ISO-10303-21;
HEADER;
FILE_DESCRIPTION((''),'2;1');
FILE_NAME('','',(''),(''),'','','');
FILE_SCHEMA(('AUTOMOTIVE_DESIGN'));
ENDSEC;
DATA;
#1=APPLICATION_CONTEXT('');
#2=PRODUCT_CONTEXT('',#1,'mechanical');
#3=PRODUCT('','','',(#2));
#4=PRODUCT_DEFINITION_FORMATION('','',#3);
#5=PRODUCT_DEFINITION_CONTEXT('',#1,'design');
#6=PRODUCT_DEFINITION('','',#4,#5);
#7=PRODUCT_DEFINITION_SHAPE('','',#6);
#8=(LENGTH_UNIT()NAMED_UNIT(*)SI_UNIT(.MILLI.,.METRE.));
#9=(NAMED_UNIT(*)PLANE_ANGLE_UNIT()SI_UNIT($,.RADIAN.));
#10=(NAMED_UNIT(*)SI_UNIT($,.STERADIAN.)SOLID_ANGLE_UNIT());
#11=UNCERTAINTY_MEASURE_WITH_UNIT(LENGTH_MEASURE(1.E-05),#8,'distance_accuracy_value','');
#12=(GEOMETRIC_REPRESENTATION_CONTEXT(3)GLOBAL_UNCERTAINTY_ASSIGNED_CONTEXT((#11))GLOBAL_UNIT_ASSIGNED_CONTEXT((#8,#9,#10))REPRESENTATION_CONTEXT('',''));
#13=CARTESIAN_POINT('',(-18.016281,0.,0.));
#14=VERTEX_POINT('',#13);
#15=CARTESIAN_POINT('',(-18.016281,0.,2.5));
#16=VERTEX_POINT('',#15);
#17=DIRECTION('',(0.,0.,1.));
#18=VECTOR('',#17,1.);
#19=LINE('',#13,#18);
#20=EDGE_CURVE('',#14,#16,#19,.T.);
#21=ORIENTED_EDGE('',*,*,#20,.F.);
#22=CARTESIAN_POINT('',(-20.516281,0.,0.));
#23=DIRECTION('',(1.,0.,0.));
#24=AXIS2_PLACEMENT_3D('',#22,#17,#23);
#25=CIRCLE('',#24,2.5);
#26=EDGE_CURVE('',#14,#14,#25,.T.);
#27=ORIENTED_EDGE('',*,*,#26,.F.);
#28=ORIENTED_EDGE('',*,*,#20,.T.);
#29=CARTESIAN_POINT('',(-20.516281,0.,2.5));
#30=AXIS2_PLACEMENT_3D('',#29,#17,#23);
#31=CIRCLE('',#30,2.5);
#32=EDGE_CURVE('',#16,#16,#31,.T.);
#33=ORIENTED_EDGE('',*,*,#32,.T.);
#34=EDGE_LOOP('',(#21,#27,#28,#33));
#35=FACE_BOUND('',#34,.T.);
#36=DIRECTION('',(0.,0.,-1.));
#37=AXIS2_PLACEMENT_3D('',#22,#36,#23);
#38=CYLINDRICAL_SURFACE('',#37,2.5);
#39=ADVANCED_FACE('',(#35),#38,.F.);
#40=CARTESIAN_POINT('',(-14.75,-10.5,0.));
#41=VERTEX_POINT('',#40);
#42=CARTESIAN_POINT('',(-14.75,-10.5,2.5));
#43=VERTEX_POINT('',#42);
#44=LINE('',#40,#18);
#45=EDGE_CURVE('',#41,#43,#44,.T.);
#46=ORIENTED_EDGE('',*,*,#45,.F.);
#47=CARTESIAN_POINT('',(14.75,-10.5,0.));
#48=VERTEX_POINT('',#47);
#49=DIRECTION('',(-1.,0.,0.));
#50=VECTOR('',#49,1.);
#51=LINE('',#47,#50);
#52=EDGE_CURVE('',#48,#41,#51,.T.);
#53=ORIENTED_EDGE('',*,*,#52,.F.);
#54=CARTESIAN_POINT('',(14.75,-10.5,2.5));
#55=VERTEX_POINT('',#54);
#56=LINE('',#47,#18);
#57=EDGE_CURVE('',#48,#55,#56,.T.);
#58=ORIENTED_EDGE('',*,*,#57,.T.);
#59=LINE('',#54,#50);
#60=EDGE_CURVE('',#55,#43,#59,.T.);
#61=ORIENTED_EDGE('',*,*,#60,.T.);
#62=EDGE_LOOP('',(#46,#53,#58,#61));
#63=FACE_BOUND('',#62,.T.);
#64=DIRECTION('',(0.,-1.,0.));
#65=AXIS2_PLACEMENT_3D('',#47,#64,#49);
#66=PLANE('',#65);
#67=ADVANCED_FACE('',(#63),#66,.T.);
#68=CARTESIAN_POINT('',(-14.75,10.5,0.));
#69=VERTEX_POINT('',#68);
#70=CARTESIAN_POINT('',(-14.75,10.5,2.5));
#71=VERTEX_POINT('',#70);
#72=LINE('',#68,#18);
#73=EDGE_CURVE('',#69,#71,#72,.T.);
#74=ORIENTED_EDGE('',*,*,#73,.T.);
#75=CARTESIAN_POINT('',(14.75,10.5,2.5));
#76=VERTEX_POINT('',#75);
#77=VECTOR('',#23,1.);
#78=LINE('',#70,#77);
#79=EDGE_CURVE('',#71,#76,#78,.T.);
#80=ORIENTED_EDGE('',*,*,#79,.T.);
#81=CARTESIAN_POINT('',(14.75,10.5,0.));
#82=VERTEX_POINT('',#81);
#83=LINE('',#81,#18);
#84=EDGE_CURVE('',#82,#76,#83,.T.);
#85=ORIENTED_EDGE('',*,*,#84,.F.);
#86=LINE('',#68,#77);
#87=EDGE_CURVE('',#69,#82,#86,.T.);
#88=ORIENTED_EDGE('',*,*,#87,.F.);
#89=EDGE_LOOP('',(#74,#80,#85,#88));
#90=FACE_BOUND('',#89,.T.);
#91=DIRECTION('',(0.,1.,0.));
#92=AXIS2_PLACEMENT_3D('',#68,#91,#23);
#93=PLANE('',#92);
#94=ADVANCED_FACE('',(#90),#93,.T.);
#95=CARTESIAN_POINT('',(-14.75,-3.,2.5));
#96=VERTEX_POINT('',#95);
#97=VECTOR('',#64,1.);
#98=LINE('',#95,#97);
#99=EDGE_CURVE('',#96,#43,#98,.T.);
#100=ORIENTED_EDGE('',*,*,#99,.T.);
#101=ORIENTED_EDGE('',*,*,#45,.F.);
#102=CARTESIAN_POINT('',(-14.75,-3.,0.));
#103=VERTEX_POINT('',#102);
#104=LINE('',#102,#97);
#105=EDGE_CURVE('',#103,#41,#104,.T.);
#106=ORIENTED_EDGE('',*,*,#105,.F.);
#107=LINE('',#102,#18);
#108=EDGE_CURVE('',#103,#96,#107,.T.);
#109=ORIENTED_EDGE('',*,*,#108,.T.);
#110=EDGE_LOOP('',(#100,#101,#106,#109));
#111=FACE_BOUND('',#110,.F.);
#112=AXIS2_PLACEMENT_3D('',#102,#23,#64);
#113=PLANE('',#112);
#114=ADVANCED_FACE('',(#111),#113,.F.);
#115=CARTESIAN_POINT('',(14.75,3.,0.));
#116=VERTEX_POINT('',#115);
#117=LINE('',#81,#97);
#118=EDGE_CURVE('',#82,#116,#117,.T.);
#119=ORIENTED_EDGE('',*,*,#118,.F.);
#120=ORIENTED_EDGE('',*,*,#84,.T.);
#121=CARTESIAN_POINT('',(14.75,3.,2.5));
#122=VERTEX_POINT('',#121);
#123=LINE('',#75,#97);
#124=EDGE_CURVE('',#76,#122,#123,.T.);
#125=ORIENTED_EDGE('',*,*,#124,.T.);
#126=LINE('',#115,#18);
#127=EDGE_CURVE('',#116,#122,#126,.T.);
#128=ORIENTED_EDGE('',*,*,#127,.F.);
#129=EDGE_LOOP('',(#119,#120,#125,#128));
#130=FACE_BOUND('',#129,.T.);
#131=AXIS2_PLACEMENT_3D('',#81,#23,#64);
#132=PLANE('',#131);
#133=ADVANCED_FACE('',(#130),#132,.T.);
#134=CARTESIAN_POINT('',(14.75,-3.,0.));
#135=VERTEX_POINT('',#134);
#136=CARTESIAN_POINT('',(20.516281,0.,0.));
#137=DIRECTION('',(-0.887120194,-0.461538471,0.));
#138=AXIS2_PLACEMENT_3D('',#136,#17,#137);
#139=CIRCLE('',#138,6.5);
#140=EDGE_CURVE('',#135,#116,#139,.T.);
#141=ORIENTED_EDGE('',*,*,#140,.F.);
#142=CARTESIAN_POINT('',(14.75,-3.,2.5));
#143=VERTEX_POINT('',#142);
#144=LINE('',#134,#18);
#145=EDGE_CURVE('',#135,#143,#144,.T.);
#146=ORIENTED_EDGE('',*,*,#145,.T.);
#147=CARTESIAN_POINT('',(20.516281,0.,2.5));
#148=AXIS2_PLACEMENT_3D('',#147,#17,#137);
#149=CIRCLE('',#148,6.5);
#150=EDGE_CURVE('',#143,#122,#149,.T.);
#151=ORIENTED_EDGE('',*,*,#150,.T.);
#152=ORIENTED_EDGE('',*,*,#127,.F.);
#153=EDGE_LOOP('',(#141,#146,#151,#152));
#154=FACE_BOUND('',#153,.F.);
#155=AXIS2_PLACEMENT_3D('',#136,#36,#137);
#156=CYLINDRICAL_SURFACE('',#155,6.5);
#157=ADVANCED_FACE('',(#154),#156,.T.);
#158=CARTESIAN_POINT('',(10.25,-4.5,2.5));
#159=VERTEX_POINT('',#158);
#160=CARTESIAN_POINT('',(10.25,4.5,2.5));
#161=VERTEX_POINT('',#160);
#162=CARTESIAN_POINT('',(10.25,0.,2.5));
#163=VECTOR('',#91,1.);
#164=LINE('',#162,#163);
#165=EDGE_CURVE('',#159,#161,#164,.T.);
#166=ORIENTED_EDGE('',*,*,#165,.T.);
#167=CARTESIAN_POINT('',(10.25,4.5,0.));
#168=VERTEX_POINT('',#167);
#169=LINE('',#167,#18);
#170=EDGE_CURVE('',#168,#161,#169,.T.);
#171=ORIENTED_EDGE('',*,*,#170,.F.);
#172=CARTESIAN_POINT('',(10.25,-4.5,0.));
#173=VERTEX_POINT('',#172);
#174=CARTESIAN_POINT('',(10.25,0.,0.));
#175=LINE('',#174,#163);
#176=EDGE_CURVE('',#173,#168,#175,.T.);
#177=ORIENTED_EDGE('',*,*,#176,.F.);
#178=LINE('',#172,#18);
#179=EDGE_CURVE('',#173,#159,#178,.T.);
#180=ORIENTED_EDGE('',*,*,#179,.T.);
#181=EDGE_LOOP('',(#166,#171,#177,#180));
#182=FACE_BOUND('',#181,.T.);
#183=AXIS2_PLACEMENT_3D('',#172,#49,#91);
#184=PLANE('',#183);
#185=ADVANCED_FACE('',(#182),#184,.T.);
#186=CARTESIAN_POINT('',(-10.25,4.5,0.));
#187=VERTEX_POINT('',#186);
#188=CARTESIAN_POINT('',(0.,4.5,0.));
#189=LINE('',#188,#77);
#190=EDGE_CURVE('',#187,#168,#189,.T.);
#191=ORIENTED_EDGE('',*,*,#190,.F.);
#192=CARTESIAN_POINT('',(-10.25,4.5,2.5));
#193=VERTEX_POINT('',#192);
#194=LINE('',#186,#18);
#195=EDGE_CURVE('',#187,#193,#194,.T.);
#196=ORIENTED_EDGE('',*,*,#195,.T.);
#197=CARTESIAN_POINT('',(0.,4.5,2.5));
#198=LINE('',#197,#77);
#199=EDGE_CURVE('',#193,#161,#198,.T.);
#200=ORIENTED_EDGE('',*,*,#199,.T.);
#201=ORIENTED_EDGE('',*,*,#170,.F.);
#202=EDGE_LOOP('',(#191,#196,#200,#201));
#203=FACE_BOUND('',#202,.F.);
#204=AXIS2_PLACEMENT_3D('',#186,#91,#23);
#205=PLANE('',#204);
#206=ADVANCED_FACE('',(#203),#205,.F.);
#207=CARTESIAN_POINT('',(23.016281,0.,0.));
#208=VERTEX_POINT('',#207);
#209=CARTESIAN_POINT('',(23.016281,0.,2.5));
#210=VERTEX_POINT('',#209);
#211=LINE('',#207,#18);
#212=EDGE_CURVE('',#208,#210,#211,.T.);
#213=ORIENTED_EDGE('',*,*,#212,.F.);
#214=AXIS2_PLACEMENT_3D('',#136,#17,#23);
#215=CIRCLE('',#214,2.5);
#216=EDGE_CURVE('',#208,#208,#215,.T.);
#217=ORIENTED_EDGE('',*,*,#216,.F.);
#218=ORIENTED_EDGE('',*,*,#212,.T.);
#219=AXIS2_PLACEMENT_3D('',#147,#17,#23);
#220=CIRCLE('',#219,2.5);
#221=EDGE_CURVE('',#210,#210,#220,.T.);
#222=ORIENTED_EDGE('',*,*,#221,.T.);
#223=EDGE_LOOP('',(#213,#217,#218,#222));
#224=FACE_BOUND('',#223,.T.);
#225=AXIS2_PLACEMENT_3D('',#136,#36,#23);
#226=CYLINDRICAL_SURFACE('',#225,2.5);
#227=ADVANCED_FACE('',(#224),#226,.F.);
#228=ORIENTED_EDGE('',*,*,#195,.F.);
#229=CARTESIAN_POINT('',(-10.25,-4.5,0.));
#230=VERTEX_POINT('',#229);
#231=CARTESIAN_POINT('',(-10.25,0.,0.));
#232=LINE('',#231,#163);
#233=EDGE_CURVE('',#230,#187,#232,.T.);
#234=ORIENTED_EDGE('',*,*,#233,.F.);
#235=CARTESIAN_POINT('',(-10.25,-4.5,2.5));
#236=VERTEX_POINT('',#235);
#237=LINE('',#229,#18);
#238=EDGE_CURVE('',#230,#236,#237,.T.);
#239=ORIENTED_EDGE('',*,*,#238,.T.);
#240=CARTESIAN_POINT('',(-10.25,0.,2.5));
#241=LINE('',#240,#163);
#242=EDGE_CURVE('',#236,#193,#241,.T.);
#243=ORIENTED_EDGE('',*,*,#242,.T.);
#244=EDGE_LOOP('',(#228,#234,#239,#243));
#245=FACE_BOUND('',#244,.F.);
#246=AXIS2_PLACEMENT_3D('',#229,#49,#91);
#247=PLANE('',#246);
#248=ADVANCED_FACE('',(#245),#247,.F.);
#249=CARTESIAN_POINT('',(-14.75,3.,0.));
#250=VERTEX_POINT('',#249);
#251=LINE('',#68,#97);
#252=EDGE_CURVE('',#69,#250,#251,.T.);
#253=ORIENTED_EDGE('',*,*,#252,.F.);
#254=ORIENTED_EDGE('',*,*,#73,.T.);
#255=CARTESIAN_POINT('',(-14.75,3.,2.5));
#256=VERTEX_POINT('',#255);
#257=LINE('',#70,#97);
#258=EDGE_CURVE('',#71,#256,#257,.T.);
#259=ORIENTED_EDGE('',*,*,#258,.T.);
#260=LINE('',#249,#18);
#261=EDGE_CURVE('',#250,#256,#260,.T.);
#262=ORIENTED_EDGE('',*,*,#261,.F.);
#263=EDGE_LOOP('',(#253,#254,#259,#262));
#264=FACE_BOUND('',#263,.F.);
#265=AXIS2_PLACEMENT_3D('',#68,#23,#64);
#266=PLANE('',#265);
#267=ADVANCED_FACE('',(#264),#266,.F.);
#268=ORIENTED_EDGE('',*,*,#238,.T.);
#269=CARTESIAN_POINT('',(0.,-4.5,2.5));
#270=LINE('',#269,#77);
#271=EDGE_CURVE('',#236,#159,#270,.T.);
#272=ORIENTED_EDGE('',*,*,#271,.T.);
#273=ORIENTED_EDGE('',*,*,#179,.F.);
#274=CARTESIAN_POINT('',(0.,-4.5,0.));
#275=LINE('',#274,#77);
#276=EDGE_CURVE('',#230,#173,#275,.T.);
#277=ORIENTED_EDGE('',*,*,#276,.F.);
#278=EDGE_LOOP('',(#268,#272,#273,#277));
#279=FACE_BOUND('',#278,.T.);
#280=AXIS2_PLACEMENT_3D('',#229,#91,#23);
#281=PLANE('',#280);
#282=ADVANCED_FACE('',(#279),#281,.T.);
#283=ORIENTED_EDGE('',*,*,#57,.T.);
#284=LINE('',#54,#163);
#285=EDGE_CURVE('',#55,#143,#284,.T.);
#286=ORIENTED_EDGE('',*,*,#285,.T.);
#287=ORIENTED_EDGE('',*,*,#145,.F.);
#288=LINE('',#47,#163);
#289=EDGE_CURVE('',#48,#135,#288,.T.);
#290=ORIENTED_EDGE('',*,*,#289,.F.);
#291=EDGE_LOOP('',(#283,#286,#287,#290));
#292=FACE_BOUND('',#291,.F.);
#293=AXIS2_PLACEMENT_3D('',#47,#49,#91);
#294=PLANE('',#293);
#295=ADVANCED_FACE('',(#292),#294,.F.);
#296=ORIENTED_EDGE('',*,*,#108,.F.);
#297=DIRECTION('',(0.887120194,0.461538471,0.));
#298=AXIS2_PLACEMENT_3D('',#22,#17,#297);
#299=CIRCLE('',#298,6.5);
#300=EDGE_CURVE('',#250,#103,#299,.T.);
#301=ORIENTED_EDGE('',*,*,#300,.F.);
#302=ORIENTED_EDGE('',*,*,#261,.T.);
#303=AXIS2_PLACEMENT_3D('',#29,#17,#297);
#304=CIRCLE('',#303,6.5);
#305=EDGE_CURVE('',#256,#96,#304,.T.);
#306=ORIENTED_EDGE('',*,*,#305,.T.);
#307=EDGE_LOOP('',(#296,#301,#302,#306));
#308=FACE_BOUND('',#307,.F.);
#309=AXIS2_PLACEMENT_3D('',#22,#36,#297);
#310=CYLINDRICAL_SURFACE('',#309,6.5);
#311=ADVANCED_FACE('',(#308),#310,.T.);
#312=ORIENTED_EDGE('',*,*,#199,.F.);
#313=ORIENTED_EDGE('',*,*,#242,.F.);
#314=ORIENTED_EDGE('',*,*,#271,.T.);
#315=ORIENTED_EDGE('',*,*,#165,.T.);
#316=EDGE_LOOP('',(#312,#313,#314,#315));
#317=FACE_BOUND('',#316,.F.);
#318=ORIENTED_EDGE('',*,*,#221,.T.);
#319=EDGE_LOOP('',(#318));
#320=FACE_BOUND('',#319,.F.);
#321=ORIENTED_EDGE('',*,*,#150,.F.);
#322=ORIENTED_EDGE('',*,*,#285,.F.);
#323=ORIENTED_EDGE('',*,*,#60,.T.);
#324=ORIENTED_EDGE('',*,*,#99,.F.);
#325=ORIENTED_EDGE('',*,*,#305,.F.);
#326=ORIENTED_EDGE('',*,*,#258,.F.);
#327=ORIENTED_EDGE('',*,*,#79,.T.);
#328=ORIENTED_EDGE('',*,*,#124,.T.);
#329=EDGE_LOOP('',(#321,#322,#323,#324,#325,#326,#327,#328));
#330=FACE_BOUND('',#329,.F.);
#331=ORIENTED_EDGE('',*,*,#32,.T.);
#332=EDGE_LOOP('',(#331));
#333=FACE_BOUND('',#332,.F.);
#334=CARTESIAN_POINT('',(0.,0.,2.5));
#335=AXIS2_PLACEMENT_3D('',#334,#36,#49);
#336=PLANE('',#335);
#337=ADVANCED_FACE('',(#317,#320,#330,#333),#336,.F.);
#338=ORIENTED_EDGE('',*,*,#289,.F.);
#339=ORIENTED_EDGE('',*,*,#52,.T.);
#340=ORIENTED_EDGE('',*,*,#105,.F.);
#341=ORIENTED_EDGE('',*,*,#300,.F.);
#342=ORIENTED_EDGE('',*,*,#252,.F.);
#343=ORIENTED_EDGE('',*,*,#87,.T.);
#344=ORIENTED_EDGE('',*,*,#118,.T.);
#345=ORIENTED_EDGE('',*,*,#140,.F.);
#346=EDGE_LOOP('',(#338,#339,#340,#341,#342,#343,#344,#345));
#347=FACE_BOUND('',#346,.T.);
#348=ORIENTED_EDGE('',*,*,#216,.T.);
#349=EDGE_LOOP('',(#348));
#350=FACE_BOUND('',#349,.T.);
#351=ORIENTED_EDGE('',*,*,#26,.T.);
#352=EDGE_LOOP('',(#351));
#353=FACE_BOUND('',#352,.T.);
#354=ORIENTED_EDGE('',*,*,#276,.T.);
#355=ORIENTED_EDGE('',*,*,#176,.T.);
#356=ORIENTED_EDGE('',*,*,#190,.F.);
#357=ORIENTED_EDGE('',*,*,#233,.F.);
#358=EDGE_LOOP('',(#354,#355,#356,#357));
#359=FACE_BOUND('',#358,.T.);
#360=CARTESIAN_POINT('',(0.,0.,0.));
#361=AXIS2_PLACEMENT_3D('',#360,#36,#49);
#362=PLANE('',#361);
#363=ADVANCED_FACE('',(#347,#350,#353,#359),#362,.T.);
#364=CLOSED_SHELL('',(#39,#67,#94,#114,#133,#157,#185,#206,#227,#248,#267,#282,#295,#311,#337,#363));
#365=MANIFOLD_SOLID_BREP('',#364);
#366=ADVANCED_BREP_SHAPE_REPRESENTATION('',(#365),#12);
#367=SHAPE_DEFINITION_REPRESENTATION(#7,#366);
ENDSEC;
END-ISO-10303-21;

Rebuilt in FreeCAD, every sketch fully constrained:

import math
import FreeCAD as App
import Part
import Sketcher
Q = App.Units.Quantity

doc = App.newDocument("Part")
body = doc.addObject("PartDesign::Body", "Body")

# Sketch on XY plane
sketch1 = body.newObject("Sketcher::SketchObject", "Sketch")
sketch1.AttachmentSupport = (doc.getObject("XY_Plane"), [""])
sketch1.MapMode = "FlatFace"
sketch1.addGeometry(Part.LineSegment(App.Vector(14.8, 10.5, 0), App.Vector(-14.8, 10.5, 0)), False)
sketch1.addGeometry(Part.LineSegment(App.Vector(-14.8, 10.5, 0), App.Vector(-14.8, 3, 0)), False)
sketch1.addGeometry(Part.ArcOfCircle(Part.Circle(App.Vector(-20.5, 0, 0), App.Vector(0, 0, 1), 6.5), math.radians(27), math.radians(333)), False)
sketch1.addGeometry(Part.LineSegment(App.Vector(-14.8, -3, 0), App.Vector(-14.8, -10.5, 0)), False)
sketch1.addGeometry(Part.LineSegment(App.Vector(-14.8, -10.5, 0), App.Vector(14.8, -10.5, 0)), False)
sketch1.addGeometry(Part.LineSegment(App.Vector(14.8, -10.5, 0), App.Vector(14.8, -3, 0)), False)
sketch1.addGeometry(Part.ArcOfCircle(Part.Circle(App.Vector(20.5, 0, 0), App.Vector(0, 0, 1), 6.5), math.radians(-153), math.radians(153)), False)
sketch1.addGeometry(Part.LineSegment(App.Vector(14.8, 3, 0), App.Vector(14.8, 10.5, 0)), False)
sketch1.addGeometry(Part.Circle(App.Vector(20.5, 0, 0), App.Vector(0, 0, 1), 2.5), False)
sketch1.addGeometry(Part.LineSegment(App.Vector(-10.2, -4.5, 0), App.Vector(-10.2, 4.5, 0)), False)
sketch1.addGeometry(Part.LineSegment(App.Vector(-10.2, 4.5, 0), App.Vector(10.2, 4.5, 0)), False)
sketch1.addGeometry(Part.LineSegment(App.Vector(10.2, 4.5, 0), App.Vector(10.2, -4.5, 0)), False)
sketch1.addGeometry(Part.LineSegment(App.Vector(10.2, -4.5, 0), App.Vector(-10.2, -4.5, 0)), False)
sketch1.addGeometry(Part.Circle(App.Vector(-20.5, 0, 0), App.Vector(0, 0, 1), 2.5), False)
sketch1.addConstraint(Sketcher.Constraint("Coincident", 0, 2, 1, 1))
sketch1.addConstraint(Sketcher.Constraint("Coincident", 1, 2, 2, 1))
sketch1.addConstraint(Sketcher.Constraint("Coincident", 2, 2, 3, 1))
sketch1.addConstraint(Sketcher.Constraint("Coincident", 3, 2, 4, 1))
sketch1.addConstraint(Sketcher.Constraint("Coincident", 4, 2, 5, 1))
sketch1.addConstraint(Sketcher.Constraint("Coincident", 5, 2, 6, 1))
sketch1.addConstraint(Sketcher.Constraint("Coincident", 6, 2, 7, 1))
sketch1.addConstraint(Sketcher.Constraint("Coincident", 7, 2, 0, 1))
sketch1.addConstraint(Sketcher.Constraint("Coincident", 9, 2, 10, 1))
sketch1.addConstraint(Sketcher.Constraint("Coincident", 10, 2, 11, 1))
sketch1.addConstraint(Sketcher.Constraint("Coincident", 11, 2, 12, 1))
sketch1.addConstraint(Sketcher.Constraint("Coincident", 12, 2, 9, 1))
sketch1.addConstraint(Sketcher.Constraint("Horizontal", 0))
sketch1.addConstraint(Sketcher.Constraint("Vertical", 1))
sketch1.addConstraint(Sketcher.Constraint("Vertical", 3))
sketch1.addConstraint(Sketcher.Constraint("Horizontal", 4))
sketch1.addConstraint(Sketcher.Constraint("Vertical", 5))
sketch1.addConstraint(Sketcher.Constraint("Vertical", 7))
sketch1.addConstraint(Sketcher.Constraint("Vertical", 9))
sketch1.addConstraint(Sketcher.Constraint("Horizontal", 10))
sketch1.addConstraint(Sketcher.Constraint("Vertical", 11))
sketch1.addConstraint(Sketcher.Constraint("Horizontal", 12))
sketch1.addConstraint(Sketcher.Constraint("Coincident", 8, 3, 6, 3))
sketch1.addConstraint(Sketcher.Constraint("Coincident", 13, 3, 2, 3))
sketch1.addConstraint(Sketcher.Constraint("Equal", 2, 6))
sketch1.addConstraint(Sketcher.Constraint("Equal", 8, 13))
sketch1.addConstraint(Sketcher.Constraint("Symmetric", 2, 3, 6, 3, -1, 1))
sketch1.addConstraint(Sketcher.Constraint("Symmetric", 0, 2, 4, 2, -1, 1))
sketch1.addConstraint(Sketcher.Constraint("Symmetric", 9, 2, 11, 2, -1, 1))
sketch1.addConstraint(Sketcher.Constraint("Symmetric", 2, 2, 5, 2, -2))
sketch1.addConstraint(Sketcher.Constraint("Horizontal", 1, 2, 6, 2))
sketch1.addConstraint(Sketcher.Constraint("Diameter", 8, Q("5 mm")))
sketch1.addConstraint(Sketcher.Constraint("Radius", 2, Q("6.5 mm")))
sketch1.addConstraint(Sketcher.Constraint("DistanceY", 9, 1, 9, 2, Q("9 mm")))
sketch1.addConstraint(Sketcher.Constraint("DistanceX", 0, 2, 0, 1, Q("29.5 mm")))
sketch1.addConstraint(Sketcher.Constraint("DistanceX", 10, 1, 10, 2, Q("20.5 mm")))
sketch1.addConstraint(Sketcher.Constraint("DistanceY", 1, 2, 1, 1, Q("7.5 mm")))
sketch1.addConstraint(Sketcher.Constraint("DistanceY", -1, 1, 1, 2, Q("3 mm")))
pad1 = body.newObject("PartDesign::Pad", "Pad")
pad1.Profile = sketch1
pad1.Length = 2.5

doc.recompute()
